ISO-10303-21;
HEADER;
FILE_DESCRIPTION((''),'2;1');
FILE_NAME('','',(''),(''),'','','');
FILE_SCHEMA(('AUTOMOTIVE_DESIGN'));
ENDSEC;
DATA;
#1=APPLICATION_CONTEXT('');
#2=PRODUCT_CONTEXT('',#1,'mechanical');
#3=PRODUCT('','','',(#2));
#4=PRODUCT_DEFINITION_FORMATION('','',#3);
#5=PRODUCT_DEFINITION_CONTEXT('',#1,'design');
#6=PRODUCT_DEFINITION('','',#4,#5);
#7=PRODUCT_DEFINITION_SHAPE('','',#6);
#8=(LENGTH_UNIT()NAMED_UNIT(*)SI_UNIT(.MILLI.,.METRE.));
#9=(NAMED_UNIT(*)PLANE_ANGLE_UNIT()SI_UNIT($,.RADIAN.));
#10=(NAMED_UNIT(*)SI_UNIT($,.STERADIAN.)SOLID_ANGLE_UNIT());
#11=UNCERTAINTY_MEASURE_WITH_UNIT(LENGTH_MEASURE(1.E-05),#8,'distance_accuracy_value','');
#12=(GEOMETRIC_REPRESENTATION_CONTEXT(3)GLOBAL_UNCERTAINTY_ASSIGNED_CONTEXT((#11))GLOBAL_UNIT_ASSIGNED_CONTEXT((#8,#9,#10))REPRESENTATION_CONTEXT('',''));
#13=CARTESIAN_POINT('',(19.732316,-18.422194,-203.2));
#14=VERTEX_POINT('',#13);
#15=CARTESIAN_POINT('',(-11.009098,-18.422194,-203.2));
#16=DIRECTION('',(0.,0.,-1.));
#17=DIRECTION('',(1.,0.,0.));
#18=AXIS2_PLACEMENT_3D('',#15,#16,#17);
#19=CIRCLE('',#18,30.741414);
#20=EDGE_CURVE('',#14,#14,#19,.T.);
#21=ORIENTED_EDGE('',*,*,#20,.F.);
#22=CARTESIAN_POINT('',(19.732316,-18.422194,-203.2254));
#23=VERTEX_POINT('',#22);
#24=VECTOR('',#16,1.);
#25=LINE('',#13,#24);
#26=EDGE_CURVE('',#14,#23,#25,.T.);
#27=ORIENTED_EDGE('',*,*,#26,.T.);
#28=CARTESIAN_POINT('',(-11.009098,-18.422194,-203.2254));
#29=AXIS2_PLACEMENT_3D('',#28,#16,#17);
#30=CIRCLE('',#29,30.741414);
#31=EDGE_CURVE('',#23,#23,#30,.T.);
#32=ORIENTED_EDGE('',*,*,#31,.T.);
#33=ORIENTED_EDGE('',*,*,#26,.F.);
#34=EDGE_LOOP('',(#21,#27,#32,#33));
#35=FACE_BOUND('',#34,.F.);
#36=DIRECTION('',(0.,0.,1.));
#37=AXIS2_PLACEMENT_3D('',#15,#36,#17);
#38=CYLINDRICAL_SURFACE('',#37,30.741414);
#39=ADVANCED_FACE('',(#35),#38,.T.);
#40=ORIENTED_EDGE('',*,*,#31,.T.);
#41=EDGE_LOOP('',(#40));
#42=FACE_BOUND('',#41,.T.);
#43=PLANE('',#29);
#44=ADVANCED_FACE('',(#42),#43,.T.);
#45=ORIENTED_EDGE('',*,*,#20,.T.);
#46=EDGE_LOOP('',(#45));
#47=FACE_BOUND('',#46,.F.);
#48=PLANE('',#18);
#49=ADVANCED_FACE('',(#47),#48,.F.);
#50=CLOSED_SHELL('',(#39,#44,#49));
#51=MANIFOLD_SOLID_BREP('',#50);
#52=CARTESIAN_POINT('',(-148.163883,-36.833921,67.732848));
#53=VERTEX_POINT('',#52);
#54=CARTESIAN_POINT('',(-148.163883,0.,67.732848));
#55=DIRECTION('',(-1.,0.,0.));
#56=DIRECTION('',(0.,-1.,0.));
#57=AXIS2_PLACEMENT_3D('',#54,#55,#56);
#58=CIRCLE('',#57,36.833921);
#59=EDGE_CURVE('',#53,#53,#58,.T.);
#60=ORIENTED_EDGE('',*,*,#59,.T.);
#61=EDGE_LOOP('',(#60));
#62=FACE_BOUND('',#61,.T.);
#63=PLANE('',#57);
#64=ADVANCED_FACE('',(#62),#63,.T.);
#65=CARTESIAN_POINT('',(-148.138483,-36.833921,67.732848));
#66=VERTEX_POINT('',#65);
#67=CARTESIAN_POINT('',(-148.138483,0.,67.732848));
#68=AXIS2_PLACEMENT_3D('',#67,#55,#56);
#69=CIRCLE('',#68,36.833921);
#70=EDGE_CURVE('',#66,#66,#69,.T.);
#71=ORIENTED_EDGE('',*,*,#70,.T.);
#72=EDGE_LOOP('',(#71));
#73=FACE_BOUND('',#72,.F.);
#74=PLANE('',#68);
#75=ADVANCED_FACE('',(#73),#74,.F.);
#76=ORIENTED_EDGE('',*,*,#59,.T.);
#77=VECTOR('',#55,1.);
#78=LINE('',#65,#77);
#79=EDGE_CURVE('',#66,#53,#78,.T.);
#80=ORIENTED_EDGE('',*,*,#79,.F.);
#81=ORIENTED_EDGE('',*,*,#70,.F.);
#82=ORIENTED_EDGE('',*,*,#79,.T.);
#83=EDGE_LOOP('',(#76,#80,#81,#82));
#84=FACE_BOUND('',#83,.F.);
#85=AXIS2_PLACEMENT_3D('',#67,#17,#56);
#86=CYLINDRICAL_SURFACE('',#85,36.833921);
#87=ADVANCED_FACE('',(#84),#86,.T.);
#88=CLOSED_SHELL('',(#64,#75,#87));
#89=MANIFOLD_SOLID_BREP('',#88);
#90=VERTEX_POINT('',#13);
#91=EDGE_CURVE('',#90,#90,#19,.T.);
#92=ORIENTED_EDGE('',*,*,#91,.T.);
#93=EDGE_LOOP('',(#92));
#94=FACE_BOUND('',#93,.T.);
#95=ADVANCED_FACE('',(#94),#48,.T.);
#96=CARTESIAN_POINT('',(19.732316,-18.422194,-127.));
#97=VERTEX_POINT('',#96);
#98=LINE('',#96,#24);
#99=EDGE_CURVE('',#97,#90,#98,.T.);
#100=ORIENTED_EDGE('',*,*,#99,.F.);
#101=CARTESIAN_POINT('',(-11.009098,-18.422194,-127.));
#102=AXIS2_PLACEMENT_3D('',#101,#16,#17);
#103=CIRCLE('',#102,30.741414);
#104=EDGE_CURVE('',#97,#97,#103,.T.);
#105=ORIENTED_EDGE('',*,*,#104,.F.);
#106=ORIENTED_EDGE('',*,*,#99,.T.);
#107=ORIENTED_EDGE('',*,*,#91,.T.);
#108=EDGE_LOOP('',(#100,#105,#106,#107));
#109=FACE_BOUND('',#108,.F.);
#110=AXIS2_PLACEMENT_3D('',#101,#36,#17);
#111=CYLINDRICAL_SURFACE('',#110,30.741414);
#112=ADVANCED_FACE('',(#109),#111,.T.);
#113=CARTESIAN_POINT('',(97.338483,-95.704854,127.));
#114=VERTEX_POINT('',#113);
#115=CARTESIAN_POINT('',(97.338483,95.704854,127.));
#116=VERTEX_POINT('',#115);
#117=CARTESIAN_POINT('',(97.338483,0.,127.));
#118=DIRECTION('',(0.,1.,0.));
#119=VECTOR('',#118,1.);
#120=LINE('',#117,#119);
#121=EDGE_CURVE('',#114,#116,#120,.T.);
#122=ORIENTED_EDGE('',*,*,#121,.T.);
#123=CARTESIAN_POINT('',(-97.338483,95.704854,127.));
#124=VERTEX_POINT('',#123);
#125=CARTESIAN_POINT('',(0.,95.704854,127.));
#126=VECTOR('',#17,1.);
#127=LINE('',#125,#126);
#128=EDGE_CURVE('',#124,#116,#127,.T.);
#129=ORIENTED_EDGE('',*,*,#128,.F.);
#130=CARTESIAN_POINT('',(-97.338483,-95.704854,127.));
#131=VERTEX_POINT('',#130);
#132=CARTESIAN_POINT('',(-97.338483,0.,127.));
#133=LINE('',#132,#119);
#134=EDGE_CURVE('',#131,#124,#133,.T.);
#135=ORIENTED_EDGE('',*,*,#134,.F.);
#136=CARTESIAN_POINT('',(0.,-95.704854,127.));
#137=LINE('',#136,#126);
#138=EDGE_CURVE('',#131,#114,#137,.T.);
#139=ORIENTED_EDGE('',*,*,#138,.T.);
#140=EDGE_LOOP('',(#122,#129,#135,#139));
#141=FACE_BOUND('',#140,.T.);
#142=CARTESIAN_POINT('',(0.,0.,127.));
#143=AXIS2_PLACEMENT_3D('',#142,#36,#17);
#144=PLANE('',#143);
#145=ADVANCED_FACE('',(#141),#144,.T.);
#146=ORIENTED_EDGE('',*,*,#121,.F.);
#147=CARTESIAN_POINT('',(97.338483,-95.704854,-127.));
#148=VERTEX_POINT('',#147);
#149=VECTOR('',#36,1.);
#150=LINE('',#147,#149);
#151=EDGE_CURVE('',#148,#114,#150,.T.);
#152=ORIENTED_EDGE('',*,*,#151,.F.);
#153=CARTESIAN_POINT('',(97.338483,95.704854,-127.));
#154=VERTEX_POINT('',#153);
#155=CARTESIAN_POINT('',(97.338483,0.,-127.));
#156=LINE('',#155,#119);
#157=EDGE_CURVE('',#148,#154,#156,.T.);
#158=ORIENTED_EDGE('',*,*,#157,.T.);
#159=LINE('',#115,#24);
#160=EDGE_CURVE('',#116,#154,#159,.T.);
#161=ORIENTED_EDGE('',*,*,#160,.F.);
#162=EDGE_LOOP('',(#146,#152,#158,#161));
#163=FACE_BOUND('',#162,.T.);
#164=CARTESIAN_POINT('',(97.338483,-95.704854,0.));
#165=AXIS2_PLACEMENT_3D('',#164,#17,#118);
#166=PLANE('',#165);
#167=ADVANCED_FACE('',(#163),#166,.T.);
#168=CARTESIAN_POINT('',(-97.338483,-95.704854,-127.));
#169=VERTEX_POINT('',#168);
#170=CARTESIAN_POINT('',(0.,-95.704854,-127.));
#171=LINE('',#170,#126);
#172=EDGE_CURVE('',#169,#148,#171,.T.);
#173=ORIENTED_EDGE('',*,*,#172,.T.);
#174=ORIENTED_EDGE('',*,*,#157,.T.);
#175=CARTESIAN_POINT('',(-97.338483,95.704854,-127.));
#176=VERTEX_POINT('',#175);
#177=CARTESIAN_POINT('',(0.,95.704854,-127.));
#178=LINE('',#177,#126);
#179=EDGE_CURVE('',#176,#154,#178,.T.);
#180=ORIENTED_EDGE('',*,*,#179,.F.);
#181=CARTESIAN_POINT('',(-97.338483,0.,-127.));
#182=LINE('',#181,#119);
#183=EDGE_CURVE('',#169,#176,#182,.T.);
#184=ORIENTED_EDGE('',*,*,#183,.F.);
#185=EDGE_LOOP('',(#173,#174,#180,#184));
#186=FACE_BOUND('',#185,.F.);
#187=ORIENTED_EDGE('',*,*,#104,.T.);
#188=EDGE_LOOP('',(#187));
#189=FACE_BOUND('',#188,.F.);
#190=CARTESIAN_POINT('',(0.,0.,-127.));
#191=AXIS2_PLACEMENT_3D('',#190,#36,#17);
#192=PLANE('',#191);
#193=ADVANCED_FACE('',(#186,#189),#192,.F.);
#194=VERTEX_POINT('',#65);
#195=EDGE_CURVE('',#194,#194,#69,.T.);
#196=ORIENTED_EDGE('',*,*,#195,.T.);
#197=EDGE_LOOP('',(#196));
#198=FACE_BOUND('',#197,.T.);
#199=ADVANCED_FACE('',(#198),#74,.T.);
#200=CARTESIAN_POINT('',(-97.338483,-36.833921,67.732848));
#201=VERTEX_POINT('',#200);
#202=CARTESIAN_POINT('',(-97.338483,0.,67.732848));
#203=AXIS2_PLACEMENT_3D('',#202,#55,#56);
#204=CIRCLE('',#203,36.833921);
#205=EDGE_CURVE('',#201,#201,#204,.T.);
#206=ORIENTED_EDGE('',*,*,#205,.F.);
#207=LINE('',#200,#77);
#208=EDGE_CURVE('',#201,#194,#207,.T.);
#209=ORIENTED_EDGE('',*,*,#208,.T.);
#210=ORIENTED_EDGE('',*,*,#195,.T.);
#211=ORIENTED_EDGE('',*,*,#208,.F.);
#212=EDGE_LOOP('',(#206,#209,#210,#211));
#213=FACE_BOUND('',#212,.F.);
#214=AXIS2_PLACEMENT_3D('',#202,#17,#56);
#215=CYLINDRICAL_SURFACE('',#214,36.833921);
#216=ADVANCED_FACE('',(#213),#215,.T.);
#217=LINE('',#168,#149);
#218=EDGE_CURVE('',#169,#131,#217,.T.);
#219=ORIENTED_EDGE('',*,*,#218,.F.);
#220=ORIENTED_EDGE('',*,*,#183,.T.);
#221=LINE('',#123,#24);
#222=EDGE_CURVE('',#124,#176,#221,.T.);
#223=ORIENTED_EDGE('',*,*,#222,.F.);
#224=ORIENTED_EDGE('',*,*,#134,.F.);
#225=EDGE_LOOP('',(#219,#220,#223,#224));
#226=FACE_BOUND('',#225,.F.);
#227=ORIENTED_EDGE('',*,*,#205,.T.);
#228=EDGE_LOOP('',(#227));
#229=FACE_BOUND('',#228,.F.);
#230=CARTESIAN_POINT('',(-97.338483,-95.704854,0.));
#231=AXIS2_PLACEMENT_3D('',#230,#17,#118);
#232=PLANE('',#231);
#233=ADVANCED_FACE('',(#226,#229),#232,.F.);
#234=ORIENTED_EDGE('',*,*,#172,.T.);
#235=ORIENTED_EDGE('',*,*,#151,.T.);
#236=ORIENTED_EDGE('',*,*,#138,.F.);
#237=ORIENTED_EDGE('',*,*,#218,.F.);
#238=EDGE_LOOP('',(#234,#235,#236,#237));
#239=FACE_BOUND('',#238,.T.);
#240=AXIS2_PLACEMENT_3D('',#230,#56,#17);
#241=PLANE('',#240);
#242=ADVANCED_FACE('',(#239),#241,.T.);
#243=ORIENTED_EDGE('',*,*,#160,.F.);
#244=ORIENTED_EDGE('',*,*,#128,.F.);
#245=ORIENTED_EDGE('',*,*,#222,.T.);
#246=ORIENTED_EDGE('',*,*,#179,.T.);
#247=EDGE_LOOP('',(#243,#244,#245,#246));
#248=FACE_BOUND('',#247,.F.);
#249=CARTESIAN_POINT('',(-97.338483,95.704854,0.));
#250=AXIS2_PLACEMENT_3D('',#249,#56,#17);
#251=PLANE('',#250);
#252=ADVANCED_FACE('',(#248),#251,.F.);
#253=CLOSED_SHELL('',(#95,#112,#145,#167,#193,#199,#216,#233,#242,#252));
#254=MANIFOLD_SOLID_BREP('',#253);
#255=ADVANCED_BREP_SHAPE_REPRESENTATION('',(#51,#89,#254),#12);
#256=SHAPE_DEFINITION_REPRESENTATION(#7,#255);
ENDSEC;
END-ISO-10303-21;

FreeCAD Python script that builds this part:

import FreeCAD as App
import Part
import Sketcher
Q = App.Units.Quantity

doc = App.newDocument("Part")
body = doc.addObject("PartDesign::Body", "Body")

# Sketch on XY plane
sketch1 = doc.addObject("Sketcher::SketchObject", "Sketch")
body.addObject(sketch1)
sketch1.AttachmentSupport = (doc.XY_Plane, [""])
sketch1.MapMode = "FlatFace"
sketch1.addGeometry([
    Part.LineSegment(App.Vector(-97, 96, 0), App.Vector(-97, -96, 0)),
    Part.LineSegment(App.Vector(-97, -96, 0), App.Vector(97, -96, 0)),
    Part.LineSegment(App.Vector(97, -96, 0), App.Vector(97, 96, 0)),
    Part.LineSegment(App.Vector(97, 96, 0), App.Vector(-97, 96, 0)),
], False)
sketch1.addConstraint([
    Sketcher.Constraint("Coincident", 0, 2, 1, 1),
    Sketcher.Constraint("Coincident", 1, 2, 2, 1),
    Sketcher.Constraint("Coincident", 2, 2, 3, 1),
    Sketcher.Constraint("Coincident", 3, 2, 0, 1),
    Sketcher.Constraint("Vertical", 0),
    Sketcher.Constraint("Horizontal", 1),
    Sketcher.Constraint("Vertical", 2),
    Sketcher.Constraint("Horizontal", 3),
    Sketcher.Constraint("Symmetric", 0, 2, 2, 2, -1, 1),
    Sketcher.Constraint("DistanceY", 0, 2, 0, 1, Q("191.409708 mm")),
    Sketcher.Constraint("DistanceX", 1, 1, 1, 2, Q("194.676966 mm")),
])
pad1 = doc.addObject("PartDesign::Pad", "Pad")
body.addObject(pad1)
pad1.Profile = sketch1
pad1.Length = Q("10 in")
pad1.Midplane = True

# Sketch on YZ plane
sketch2 = doc.addObject("Sketcher::SketchObject", "Sketch001")
body.addObject(sketch2)
sketch2.AttachmentSupport = (doc.YZ_Plane, [""])
sketch2.MapMode = "FlatFace"
sketch2.AttachmentOffset = App.Placement(App.Vector(0, 0, -97.338483), App.Rotation())
sketch2.addGeometry(Part.Circle(App.Vector(0, 68, 0), App.Vector(0, 0, 1), 37), False)
sketch2.addConstraint([
    Sketcher.Constraint("PointOnObject", 0, 3, -2),
    Sketcher.Constraint("Diameter", 0, Q("73.667842 mm")),
    Sketcher.Constraint("DistanceY", -1, 1, 0, 3, Q("67.732848 mm")),
])
pad2 = doc.addObject("PartDesign::Pad", "Pad001")
body.addObject(pad2)
pad2.Profile = sketch2
pad2.Length = Q("2 in")
pad2.Reversed = True

# Sketch on XY plane
sketch3 = doc.addObject("Sketcher::SketchObject", "Sketch002")
body.addObject(sketch3)
sketch3.AttachmentSupport = (doc.XY_Plane, [""])
sketch3.MapMode = "FlatFace"
sketch3.AttachmentOffset = App.Placement(App.Vector(0, 0, -5 * 25.4), App.Rotation())
sketch3.addGeometry(Part.Circle(App.Vector(-11, -18, 0), App.Vector(0, 0, 1), 31), False)
sketch3.addConstraint([
    Sketcher.Constraint("Diameter", 0, Q("61.482828 mm")),
    Sketcher.Constraint("DistanceX", 0, 3, -1, 1, Q("11.009098 mm")),
    Sketcher.Constraint("DistanceY", 0, 3, -1, 1, Q("18.422194 mm")),
])
pad3 = doc.addObject("PartDesign::Pad", "Pad002")
body.addObject(pad3)
pad3.Profile = sketch3
pad3.Length = Q("3 in")
pad3.Reversed = True
body2 = doc.addObject("PartDesign::Body", "Body001")

# Sketch on YZ plane
sketch4 = doc.addObject("Sketcher::SketchObject", "Sketch003")
body2.addObject(sketch4)
sketch4.AttachmentSupport = (doc.getObject("YZ_Plane001"), [""])
sketch4.MapMode = "FlatFace"
sketch4.AttachmentOffset = App.Placement(App.Vector(0, 0, -148.138483), App.Rotation())
sketch4.addGeometry(Part.Circle(App.Vector(0, 68, 0), App.Vector(0, 0, 1), 37), False)
sketch4.addConstraint([
    Sketcher.Constraint("PointOnObject", 0, 3, -2),
    Sketcher.Constraint("Diameter", 0, Q("73.667842 mm")),
    Sketcher.Constraint("DistanceY", -1, 1, 0, 3, Q("67.732848 mm")),
])
pad4 = doc.addObject("PartDesign::Pad", "Pad003")
body2.addObject(pad4)
pad4.Profile = sketch4
pad4.Length = Q("0.001 in")
pad4.Reversed = True
body3 = doc.addObject("PartDesign::Body", "Body002")

# Sketch on XY plane
sketch5 = doc.addObject("Sketcher::SketchObject", "Sketch004")
body3.addObject(sketch5)
sketch5.AttachmentSupport = (doc.getObject("XY_Plane002"), [""])
sketch5.MapMode = "FlatFace"
sketch5.AttachmentOffset = App.Placement(App.Vector(0, 0, -8 * 25.4), App.Rotation())
sketch5.addGeometry(Part.Circle(App.Vector(-11, -18, 0), App.Vector(0, 0, 1), 31), False)
sketch5.addConstraint([
    Sketcher.Constraint("Diameter", 0, Q("61.482828 mm")),
    Sketcher.Constraint("DistanceX", 0, 3, -1, 1, Q("11.009098 mm")),
    Sketcher.Constraint("DistanceY", 0, 3, -1, 1, Q("18.422194 mm")),
])
pad5 = doc.addObject("PartDesign::Pad", "Pad004")
body3.addObject(pad5)
pad5.Profile = sketch5
pad5.Length = Q("0.001 in")
pad5.Reversed = True

doc.recompute()
